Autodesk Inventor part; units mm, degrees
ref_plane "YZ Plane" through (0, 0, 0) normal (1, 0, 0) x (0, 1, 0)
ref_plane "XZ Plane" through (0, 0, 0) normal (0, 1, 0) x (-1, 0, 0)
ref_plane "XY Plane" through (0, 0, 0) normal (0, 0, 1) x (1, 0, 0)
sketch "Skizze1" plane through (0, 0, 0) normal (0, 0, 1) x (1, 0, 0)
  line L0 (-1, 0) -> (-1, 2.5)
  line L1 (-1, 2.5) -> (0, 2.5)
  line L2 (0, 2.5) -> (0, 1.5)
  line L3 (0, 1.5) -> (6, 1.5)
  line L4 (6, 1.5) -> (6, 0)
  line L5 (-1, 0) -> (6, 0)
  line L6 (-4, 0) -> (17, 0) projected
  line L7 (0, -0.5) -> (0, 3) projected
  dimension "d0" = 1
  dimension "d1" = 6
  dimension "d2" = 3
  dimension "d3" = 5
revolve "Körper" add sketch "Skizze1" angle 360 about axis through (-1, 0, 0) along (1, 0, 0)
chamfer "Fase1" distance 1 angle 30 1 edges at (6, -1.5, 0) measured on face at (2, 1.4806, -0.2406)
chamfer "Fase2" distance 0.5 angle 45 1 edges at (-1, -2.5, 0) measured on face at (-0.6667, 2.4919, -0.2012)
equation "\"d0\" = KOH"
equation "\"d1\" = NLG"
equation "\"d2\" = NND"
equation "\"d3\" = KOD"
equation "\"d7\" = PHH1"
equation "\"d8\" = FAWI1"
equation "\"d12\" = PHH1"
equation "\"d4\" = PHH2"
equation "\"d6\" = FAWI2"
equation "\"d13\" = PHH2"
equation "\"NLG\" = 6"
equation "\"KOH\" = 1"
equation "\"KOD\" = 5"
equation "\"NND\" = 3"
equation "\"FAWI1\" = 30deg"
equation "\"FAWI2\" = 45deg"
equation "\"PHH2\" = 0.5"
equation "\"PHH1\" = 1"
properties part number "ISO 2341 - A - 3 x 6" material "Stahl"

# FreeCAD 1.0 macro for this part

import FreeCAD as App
import Part
import Sketcher
from FreeCAD import Vector


def edges_at(feature, points):
    """Names of the edges that pass closest to the given points."""
    edges = feature.Shape.Edges
    near = lambda p: min(range(len(edges)), key=lambda i: edges[i].distToShape(Part.Vertex(*p))[0])
    return sorted({f"Edge{near(p) + 1}" for p in points})


def add_polygon(sketch, points):
    """Adds a closed chain of lines whose ends are joined by coincident constraints."""
    first, n = sketch.GeometryCount, len(points)
    for a, b in zip(points, points[1:] + points[:1]):
        sketch.addGeometry(Part.LineSegment(App.Vector(*a, 0), App.Vector(*b, 0)), False)
    for i in range(n):
        sketch.addConstraint(Sketcher.Constraint("Coincident", first + i, 2, first + (i + 1) % n, 1))

doc = App.newDocument("Part")
body = doc.addObject("PartDesign::Body", "Body")

sketch1 = body.newObject("Sketcher::SketchObject", "Sketch")
sketch1.AttachmentSupport = (doc.getObject("XY_Plane"), [""])
sketch1.MapMode = "FlatFace"
add_polygon(sketch1, [(-1, 2.5), (-1, 0), (6, 0), (6, 1.5), (0, 1.5), (0, 2.5)])
sketch1.addConstraint(Sketcher.Constraint("Vertical", 0))
sketch1.addConstraint(Sketcher.Constraint("Horizontal", 1))
sketch1.addConstraint(Sketcher.Constraint("Vertical", 2))
sketch1.addConstraint(Sketcher.Constraint("Horizontal", 3))
sketch1.addConstraint(Sketcher.Constraint("Vertical", 4))
sketch1.addConstraint(Sketcher.Constraint("Horizontal", 5))
sketch1.addConstraint(Sketcher.Constraint("PointOnObject", 0, 2, -1))
sketch1.addConstraint(Sketcher.Constraint("PointOnObject", 3, 2, -2))
sketch1.addConstraint(Sketcher.Constraint("Equal", 5, 4))
sketch1.addConstraint(Sketcher.Constraint("DistanceX", 3, 2, 3, 1, 6.0))
sketch1.addConstraint(Sketcher.Constraint("DistanceX", 5, 2, 5, 1, 1.0))
sketch1.addConstraint(Sketcher.Constraint("DistanceY", 0, 2, 0, 1, 2.5))
revolution = body.newObject("PartDesign::Revolution", "Revolution")
revolution.Profile = sketch1
revolution.ReferenceAxis = (sketch1, ["H_Axis"])
revolution.Angle = 360
doc.recompute()

chamfer = body.newObject("PartDesign::Chamfer", "Chamfer")
chamfer.Base = (revolution, edges_at(revolution, [(6, -1.5, 0)]))
chamfer.ChamferType = "Distance and Angle"
chamfer.Size = 1
chamfer.Angle = 30
chamfer.FlipDirection = True
doc.recompute()

chamfer2 = body.newObject("PartDesign::Chamfer", "Chamfer001")
chamfer2.Base = (chamfer, edges_at(chamfer, [(-1, -2.5, 0)]))
chamfer2.Size = 0.5

doc.recompute()
